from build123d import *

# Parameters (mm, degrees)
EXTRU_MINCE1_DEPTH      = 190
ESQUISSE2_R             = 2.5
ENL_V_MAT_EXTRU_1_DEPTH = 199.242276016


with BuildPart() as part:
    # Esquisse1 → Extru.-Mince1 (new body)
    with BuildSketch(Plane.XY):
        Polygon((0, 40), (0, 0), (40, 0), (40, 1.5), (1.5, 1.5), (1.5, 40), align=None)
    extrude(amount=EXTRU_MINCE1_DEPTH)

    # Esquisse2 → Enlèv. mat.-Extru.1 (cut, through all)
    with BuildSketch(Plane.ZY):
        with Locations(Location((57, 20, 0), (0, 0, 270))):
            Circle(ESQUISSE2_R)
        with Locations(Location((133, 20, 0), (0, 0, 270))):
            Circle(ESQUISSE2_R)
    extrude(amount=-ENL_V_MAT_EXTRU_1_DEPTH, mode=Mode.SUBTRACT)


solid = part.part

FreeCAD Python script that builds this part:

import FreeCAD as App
import Part
import Sketcher

V = App.Vector


def add_polygon(sketch, points):
    """Adds a closed chain of lines whose ends are joined by coincident constraints."""
    first, n = sketch.GeometryCount, len(points)
    for a, b in zip(points, points[1:] + points[:1]):
        sketch.addGeometry(Part.LineSegment(App.Vector(*a, 0), App.Vector(*b, 0)), False)
    for i in range(n):
        sketch.addConstraint(Sketcher.Constraint("Coincident", first + i, 2, first + (i + 1) % n, 1))

doc = App.newDocument("Part")
body = doc.addObject("PartDesign::Body", "Body")

sketch1 = body.newObject("Sketcher::SketchObject", "Sketch")
sketch1.AttachmentSupport = (doc.getObject("XY_Plane"), [""])
sketch1.MapMode = "FlatFace"
add_polygon(sketch1, [(0, 40), (0, 0), (40, 0), (40, 1.5), (1.5, 1.5), (1.5, 40)])
sketch1.addConstraint([
    Sketcher.Constraint("Vertical", 0),
    Sketcher.Constraint("Horizontal", 1),
    Sketcher.Constraint("Vertical", 2),
    Sketcher.Constraint("Horizontal", 3),
    Sketcher.Constraint("Vertical", 4),
    Sketcher.Constraint("Horizontal", 5),
    Sketcher.Constraint("Coincident", 0, 2, -1, 1),
    Sketcher.Constraint("Equal", 1, 0),
    Sketcher.Constraint("Equal", 5, 2),
    Sketcher.Constraint("DistanceX", 1, 1, 1, 2, 40.0),
    Sketcher.Constraint("DistanceX", 3, 2, 3, 1, 38.5),
])
pad1 = body.newObject("PartDesign::Pad", "Pad")
pad1.Profile = sketch1
pad1.Length = 190

sketch2 = body.newObject("Sketcher::SketchObject", "Sketch001")
sketch2.AttachmentSupport = (doc.getObject("YZ_Plane"), [""])
sketch2.MapMode = "FlatFace"
sketch2.addGeometry([
    Part.Circle(V(20, 57, 0), V(0, 0, 1), 2.5),
    Part.Circle(V(20, 133, 0), V(0, 0, 1), 2.5),
], False)
sketch2.addConstraint([
    Sketcher.Constraint("Equal", 0, 1),
    Sketcher.Constraint("Vertical", 0, 3, 1, 3),
    Sketcher.Constraint("Diameter", 0, 5.0),
    Sketcher.Constraint("DistanceX", -1, 1, 0, 3, 20.0),
    Sketcher.Constraint("DistanceY", -1, 1, 0, 3, 57.0),
    Sketcher.Constraint("DistanceY", -1, 1, 1, 3, 133.0),
])
pocket1 = body.newObject("PartDesign::Pocket", "Pocket")
pocket1.Profile = sketch2
pocket1.Type = "ThroughAll"
pocket1.Reversed = True

doc.recompute()
